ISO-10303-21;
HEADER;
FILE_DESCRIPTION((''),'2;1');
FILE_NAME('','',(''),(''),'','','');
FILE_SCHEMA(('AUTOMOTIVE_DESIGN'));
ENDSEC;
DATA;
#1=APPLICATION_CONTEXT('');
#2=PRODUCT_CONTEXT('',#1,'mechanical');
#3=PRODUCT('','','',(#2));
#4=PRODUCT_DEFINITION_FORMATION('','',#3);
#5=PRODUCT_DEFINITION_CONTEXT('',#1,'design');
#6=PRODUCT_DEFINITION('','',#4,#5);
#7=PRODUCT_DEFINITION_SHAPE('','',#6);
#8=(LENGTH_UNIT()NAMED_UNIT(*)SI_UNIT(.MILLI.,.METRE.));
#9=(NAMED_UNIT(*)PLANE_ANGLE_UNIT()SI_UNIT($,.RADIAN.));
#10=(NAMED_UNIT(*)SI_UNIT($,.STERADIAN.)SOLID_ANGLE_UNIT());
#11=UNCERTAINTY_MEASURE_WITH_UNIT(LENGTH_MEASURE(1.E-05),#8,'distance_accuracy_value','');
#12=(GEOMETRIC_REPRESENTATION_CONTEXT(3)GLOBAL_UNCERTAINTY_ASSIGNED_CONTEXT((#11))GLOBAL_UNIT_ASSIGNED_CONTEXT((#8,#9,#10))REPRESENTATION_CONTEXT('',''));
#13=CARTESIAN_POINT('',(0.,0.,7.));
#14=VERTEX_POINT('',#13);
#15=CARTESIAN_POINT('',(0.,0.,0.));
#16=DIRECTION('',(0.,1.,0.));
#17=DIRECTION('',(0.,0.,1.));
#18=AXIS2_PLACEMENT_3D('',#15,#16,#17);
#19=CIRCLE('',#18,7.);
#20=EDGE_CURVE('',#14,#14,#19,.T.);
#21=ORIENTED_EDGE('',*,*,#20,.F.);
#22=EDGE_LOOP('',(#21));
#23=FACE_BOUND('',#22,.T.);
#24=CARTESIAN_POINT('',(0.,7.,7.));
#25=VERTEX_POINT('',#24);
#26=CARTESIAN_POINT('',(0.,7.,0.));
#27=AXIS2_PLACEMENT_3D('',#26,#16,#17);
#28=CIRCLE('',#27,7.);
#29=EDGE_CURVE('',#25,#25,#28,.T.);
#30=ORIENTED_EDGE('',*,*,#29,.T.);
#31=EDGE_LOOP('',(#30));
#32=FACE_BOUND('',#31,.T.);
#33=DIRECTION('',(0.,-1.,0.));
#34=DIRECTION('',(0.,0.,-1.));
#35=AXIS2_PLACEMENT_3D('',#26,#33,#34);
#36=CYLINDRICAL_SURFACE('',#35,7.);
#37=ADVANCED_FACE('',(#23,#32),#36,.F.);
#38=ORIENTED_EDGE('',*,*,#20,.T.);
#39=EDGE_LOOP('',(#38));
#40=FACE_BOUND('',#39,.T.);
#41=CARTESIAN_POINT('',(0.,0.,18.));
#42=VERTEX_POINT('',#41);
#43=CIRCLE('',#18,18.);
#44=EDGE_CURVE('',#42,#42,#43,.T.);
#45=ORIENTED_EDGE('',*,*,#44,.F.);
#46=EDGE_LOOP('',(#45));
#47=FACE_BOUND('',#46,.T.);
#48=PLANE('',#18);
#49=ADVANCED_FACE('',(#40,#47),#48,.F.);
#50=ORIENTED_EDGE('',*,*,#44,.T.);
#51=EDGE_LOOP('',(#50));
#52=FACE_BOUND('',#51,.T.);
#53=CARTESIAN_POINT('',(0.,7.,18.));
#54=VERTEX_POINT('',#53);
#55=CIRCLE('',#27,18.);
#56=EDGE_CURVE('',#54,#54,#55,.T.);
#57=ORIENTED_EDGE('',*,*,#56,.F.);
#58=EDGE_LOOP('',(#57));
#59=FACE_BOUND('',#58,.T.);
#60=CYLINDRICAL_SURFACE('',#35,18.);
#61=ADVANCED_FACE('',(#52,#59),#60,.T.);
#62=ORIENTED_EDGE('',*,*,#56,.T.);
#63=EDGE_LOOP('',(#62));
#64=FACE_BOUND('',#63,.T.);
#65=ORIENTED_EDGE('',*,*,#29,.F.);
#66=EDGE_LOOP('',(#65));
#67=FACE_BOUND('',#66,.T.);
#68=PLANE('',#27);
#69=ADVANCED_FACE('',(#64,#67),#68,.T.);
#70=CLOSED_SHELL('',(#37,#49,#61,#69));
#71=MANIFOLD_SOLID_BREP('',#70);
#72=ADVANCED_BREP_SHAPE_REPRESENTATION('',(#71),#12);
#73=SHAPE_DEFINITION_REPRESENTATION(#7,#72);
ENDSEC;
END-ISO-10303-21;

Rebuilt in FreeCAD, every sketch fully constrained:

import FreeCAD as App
import Part
import Sketcher

doc = App.newDocument("Part")
body = doc.addObject("PartDesign::Body", "Body")

sketch1 = body.newObject("Sketcher::SketchObject", "Sketch")
sketch1.AttachmentSupport = (doc.getObject("XZ_Plane"), [""])
sketch1.MapMode = "FlatFace"
sketch1.addGeometry(Part.Circle(App.Vector(0, 0, 0), App.Vector(0, 0, 1), 18), False)
sketch1.addGeometry(Part.Circle(App.Vector(0, 0, 0), App.Vector(0, 0, 1), 7), False)
sketch1.addConstraint(Sketcher.Constraint("Coincident", 0, 3, -1, 1))
sketch1.addConstraint(Sketcher.Constraint("Coincident", 1, 3, -1, 1))
sketch1.addConstraint(Sketcher.Constraint("Diameter", 0, 36.0))
sketch1.addConstraint(Sketcher.Constraint("Diameter", 1, 14.0))
pad1 = body.newObject("PartDesign::Pad", "Pad")
pad1.Profile = sketch1
pad1.Length = 7
pad1.Reversed = True

doc.recompute()
